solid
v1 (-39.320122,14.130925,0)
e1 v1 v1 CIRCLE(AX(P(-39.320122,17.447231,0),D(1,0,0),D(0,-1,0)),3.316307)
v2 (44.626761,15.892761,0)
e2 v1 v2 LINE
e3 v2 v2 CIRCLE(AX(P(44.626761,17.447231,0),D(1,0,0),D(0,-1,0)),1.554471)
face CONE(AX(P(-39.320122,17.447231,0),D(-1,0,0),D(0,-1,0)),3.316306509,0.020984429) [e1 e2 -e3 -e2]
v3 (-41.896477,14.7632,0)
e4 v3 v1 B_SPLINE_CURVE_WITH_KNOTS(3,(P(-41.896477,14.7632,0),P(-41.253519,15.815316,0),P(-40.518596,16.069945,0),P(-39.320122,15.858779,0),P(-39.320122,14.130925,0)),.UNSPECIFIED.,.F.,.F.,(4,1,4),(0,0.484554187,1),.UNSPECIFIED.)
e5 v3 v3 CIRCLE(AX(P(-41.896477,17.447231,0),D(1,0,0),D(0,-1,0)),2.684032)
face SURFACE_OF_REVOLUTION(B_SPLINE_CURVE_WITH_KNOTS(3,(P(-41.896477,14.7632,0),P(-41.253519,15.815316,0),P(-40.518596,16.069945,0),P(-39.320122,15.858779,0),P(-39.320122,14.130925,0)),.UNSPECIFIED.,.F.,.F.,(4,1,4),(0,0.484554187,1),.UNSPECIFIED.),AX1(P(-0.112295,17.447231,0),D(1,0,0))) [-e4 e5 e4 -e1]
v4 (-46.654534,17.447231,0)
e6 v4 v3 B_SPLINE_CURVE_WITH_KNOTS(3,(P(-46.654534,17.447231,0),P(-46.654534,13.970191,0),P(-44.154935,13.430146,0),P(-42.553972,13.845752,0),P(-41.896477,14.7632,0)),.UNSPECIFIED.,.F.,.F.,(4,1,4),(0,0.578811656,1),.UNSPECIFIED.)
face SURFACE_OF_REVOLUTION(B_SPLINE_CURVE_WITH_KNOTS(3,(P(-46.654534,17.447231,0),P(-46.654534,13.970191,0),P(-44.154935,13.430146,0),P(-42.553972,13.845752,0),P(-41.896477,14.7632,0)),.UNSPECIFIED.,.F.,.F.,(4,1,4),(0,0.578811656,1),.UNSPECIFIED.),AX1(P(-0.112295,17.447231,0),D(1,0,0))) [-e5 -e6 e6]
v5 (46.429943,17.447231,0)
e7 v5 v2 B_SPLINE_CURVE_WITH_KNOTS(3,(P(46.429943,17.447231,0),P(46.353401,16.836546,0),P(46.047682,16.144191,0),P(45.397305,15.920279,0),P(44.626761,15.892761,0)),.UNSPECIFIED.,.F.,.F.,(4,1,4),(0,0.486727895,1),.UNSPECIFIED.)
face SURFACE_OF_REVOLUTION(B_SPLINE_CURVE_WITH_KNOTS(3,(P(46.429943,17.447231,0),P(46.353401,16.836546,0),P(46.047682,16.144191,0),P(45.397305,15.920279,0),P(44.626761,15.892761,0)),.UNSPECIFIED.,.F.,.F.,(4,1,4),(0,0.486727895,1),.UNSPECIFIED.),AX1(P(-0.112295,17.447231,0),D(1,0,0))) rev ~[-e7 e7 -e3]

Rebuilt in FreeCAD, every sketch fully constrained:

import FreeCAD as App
import Part
import Sketcher

doc = App.newDocument("Part")
params = doc.addObject("Spreadsheet::Sheet", "Params")
for row, (alias, value) in enumerate([
    ("revolution_angle", "360 deg"),
], start=1):
    params.set(f"A{row}", alias)
    params.set(f"B{row}", "=" + value)
    params.setAlias(f"B{row}", alias)

body = doc.addObject("PartDesign::Body", "Body")

sketch1 = body.newObject("Sketcher::SketchObject", "Sketch")
sketch1.AttachmentSupport = (doc.getObject("XY_Plane"), [""])
sketch1.MapMode = "FlatFace"
sketch1.addGeometry(Part.LineSegment(App.Vector(46.429943, 17.447231, 0), App.Vector(-46.654534, 17.447231, 0)), False)
sketch1.addGeometry(Part.BSplineCurve([App.Vector(-46.654534, 17.447231, 0), App.Vector(-46.654534, 13.970191, 0), App.Vector(-44.154935, 13.430146, 0), App.Vector(-42.553972, 13.845752, 0), App.Vector(-41.896477, 14.7632, 0)], [4, 1, 4], [0, 0.578811656, 1], False, 3, [1, 1, 1, 1, 1], False), False)
sketch1.addGeometry(Part.BSplineCurve([App.Vector(-41.896477, 14.7632, 0), App.Vector(-41.253519, 15.815316, 0), App.Vector(-40.518596, 16.069945, 0), App.Vector(-39.320122, 15.858779, 0), App.Vector(-39.320122, 14.130925, 0)], [4, 1, 4], [0, 0.484554187, 1], False, 3, [1, 1, 1, 1, 1], False), False)
sketch1.addGeometry(Part.LineSegment(App.Vector(-39.320122, 14.130925, 0), App.Vector(44.626761, 15.892761, 0)), False)
sketch1.addGeometry(Part.BSplineCurve([App.Vector(46.429943, 17.447231, 0), App.Vector(46.353401, 16.836546, 0), App.Vector(46.047682, 16.144191, 0), App.Vector(45.397305, 15.920279, 0), App.Vector(44.626761, 15.892761, 0)], [4, 1, 4], [0, 0.486727895, 1], False, 3, [1, 1, 1, 1, 1], False), False)
sketch1.addGeometry(Part.LineSegment(App.Vector(-46.654534, 17.447231, 0), App.Vector(46.429943, 17.447231, 0)), True)
sketch1.addConstraint(Sketcher.Constraint("Block", 1))
sketch1.addConstraint(Sketcher.Constraint("Block", 2))
sketch1.addConstraint(Sketcher.Constraint("Block", 4))
sketch1.addConstraint(Sketcher.Constraint("Coincident", 0, 2, 1, 1))
sketch1.addConstraint(Sketcher.Constraint("Coincident", 2, 2, 3, 1))
sketch1.addConstraint(Sketcher.Constraint("Coincident", 3, 2, 4, 2))
sketch1.addConstraint(Sketcher.Constraint("Coincident", 4, 1, 0, 1))
sketch1.addConstraint(Sketcher.Constraint("Horizontal", 5))
sketch1.addConstraint(Sketcher.Constraint("Coincident", 5, 1, 0, 2))
sketch1.addConstraint(Sketcher.Constraint("DistanceX", 5, 1, 5, 2, 93.084477))
revolution = body.newObject("PartDesign::Revolution", "Revolution")
revolution.Profile = sketch1
revolution.ReferenceAxis = (sketch1, ["Axis0"])
revolution.setExpression("Angle", "Params.revolution_angle")

doc.recompute()
